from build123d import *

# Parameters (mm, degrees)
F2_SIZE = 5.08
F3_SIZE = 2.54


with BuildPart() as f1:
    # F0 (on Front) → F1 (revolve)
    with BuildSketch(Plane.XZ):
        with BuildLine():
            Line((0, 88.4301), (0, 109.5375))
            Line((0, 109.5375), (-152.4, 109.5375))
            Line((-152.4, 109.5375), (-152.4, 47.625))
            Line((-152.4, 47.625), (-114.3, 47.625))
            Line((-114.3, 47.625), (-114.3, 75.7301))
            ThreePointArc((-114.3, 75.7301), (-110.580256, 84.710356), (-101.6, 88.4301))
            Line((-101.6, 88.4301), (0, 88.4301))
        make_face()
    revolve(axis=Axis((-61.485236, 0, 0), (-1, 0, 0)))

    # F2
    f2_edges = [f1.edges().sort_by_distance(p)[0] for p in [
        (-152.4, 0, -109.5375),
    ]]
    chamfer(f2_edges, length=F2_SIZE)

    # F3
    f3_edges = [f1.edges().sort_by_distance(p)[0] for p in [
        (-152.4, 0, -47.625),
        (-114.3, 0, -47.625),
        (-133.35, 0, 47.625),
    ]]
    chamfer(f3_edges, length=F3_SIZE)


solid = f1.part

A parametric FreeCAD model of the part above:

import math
import FreeCAD as App
import Part
import Sketcher

V = App.Vector
Q = App.Units.Quantity


def edges_at(feature, points):
    """Names of the edges that pass closest to the given points."""
    edges = feature.Shape.Edges
    near = lambda p: min(range(len(edges)), key=lambda i: edges[i].distToShape(Part.Vertex(*p))[0])
    return sorted({f"Edge{near(p) + 1}" for p in points})

doc = App.newDocument("Part")
body = doc.addObject("PartDesign::Body", "Body")

sketch1 = doc.addObject("Sketcher::SketchObject", "Sketch")
body.addObject(sketch1)
sketch1.AttachmentSupport = (doc.XZ_Plane, [""])
sketch1.MapMode = "FlatFace"
sketch1.addGeometry([
    Part.LineSegment(V(0, 88, 0), V(0, 110, 0)),
    Part.LineSegment(V(0, 110, 0), V(-152, 110, 0)),
    Part.LineSegment(V(-152, 110, 0), V(-152, 48, 0)),
    Part.LineSegment(V(-152, 48, 0), V(-114, 48, 0)),
    Part.LineSegment(V(-114, 48, 0), V(-114, 76, 0)),
    Part.ArcOfCircle(Part.Circle(V(-102, 76, 0), V(0, 0, 1), 13), math.radians(90), math.radians(180)),
    Part.LineSegment(V(-102, 88, 0), V(0, 88, 0)),
], False)
sketch1.addConstraint([
    Sketcher.Constraint("Coincident", 0, 2, 1, 1),
    Sketcher.Constraint("Coincident", 1, 2, 2, 1),
    Sketcher.Constraint("Coincident", 2, 2, 3, 1),
    Sketcher.Constraint("Coincident", 3, 2, 4, 1),
    Sketcher.Constraint("Tangent", 4, 2, 5, 2),
    Sketcher.Constraint("Tangent", 5, 1, 6, 1),
    Sketcher.Constraint("Coincident", 6, 2, 0, 1),
    Sketcher.Constraint("Vertical", 0),
    Sketcher.Constraint("Horizontal", 1),
    Sketcher.Constraint("Vertical", 2),
    Sketcher.Constraint("Horizontal", 3),
    Sketcher.Constraint("Vertical", 4),
    Sketcher.Constraint("Horizontal", 6),
    Sketcher.Constraint("PointOnObject", 0, 2, -2),
    Sketcher.Constraint("Radius", 5, Q("0.5 in")),
    Sketcher.Constraint("DistanceX", 1, 2, 1, 1, Q("6 in")),
    Sketcher.Constraint("DistanceX", 6, 1, 6, 2, Q("4 in")),
    Sketcher.Constraint("DistanceY", 0, 1, 0, 2, Q("0.831 in")),
    Sketcher.Constraint("DistanceY", 2, 2, 2, 1, Q("2.4375 in")),
    Sketcher.Constraint("DistanceY", -1, 1, 0, 2, Q("4.3125 in")),
])
revolution = doc.addObject("PartDesign::Revolution", "Revolution")
body.addObject(revolution)
revolution.Profile = sketch1
revolution.ReferenceAxis = (sketch1, ["H_Axis"])
revolution.Angle = 360
doc.recompute()

chamfer = doc.addObject("PartDesign::Chamfer", "Chamfer")
body.addObject(chamfer)
chamfer.Base = (revolution, edges_at(revolution, [(-152.4, 0, -109.537)]))
chamfer.Size = Q("0.2 in")
doc.recompute()

chamfer2 = doc.addObject("PartDesign::Chamfer", "Chamfer001")
body.addObject(chamfer2)
chamfer2.Base = (chamfer, edges_at(chamfer, [(-152.4, 0, -47.625), (-114.3, 0, -47.625), (-133.35, 0, 47.625)]))
chamfer2.Size = Q("0.1 in")

doc.recompute()
